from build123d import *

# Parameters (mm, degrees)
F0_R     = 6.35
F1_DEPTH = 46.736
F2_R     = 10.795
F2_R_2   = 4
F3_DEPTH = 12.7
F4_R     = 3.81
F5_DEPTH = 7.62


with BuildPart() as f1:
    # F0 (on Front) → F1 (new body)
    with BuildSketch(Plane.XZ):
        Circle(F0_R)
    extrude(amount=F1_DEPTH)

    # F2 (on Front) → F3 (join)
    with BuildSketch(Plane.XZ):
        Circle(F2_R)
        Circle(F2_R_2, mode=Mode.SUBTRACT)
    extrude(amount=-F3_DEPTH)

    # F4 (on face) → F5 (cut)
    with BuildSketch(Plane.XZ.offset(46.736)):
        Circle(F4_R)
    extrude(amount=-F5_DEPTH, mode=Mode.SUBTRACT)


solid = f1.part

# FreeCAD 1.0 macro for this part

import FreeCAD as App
import Part
import Sketcher
Q = App.Units.Quantity

doc = App.newDocument("Part")
body = doc.addObject("PartDesign::Body", "Body")

# Sketch on XZ plane
sketch1 = doc.addObject("Sketcher::SketchObject", "Sketch")
body.addObject(sketch1)
sketch1.AttachmentSupport = (doc.XZ_Plane, [""])
sketch1.MapMode = "FlatFace"
sketch1.addGeometry(Part.Circle(App.Vector(0, 0, 0), App.Vector(0, 0, 1), 6), False)
sketch1.addConstraint([
    Sketcher.Constraint("Coincident", 0, 3, -1, 1),
    Sketcher.Constraint("Diameter", 0, Q("0.5 in")),
])
pad1 = doc.addObject("PartDesign::Pad", "Pad")
body.addObject(pad1)
pad1.Profile = sketch1
pad1.Length = Q("1.84 in")

# Sketch on XZ plane
sketch2 = doc.addObject("Sketcher::SketchObject", "Sketch001")
body.addObject(sketch2)
sketch2.AttachmentSupport = (doc.XZ_Plane, [""])
sketch2.MapMode = "FlatFace"
sketch2.addGeometry([
    Part.Circle(App.Vector(0, 0, 0), App.Vector(0, 0, 1), 10.8),
    Part.Circle(App.Vector(0, 0, 0), App.Vector(0, 0, 1), 4),
], False)
sketch2.addConstraint([
    Sketcher.Constraint("Coincident", 0, 3, -1, 1),
    Sketcher.Constraint("Coincident", 1, 3, -1, 1),
    Sketcher.Constraint("Diameter", 0, Q("0.85 in")),
    Sketcher.Constraint("Diameter", 1, Q("8 mm")),
])
pad2 = doc.addObject("PartDesign::Pad", "Pad001")
body.addObject(pad2)
pad2.Profile = sketch2
pad2.Length = Q("0.5 in")
pad2.Reversed = True

# Sketch on XZ plane
sketch3 = doc.addObject("Sketcher::SketchObject", "Sketch002")
body.addObject(sketch3)
sketch3.AttachmentSupport = (doc.XZ_Plane, [""])
sketch3.MapMode = "FlatFace"
sketch3.AttachmentOffset = App.Placement(App.Vector(0, 0, 1.84 * 25.4), App.Rotation())
sketch3.addGeometry(Part.Circle(App.Vector(0, 0, 0), App.Vector(0, 0, 1), 3.8), False)
sketch3.addConstraint([
    Sketcher.Constraint("Coincident", 0, 3, -1, 1),
    Sketcher.Constraint("Diameter", 0, Q("0.3 in")),
])
pocket1 = doc.addObject("PartDesign::Pocket", "Pocket")
body.addObject(pocket1)
pocket1.Profile = sketch3
pocket1.Length = Q("0.3 in")

doc.recompute()
